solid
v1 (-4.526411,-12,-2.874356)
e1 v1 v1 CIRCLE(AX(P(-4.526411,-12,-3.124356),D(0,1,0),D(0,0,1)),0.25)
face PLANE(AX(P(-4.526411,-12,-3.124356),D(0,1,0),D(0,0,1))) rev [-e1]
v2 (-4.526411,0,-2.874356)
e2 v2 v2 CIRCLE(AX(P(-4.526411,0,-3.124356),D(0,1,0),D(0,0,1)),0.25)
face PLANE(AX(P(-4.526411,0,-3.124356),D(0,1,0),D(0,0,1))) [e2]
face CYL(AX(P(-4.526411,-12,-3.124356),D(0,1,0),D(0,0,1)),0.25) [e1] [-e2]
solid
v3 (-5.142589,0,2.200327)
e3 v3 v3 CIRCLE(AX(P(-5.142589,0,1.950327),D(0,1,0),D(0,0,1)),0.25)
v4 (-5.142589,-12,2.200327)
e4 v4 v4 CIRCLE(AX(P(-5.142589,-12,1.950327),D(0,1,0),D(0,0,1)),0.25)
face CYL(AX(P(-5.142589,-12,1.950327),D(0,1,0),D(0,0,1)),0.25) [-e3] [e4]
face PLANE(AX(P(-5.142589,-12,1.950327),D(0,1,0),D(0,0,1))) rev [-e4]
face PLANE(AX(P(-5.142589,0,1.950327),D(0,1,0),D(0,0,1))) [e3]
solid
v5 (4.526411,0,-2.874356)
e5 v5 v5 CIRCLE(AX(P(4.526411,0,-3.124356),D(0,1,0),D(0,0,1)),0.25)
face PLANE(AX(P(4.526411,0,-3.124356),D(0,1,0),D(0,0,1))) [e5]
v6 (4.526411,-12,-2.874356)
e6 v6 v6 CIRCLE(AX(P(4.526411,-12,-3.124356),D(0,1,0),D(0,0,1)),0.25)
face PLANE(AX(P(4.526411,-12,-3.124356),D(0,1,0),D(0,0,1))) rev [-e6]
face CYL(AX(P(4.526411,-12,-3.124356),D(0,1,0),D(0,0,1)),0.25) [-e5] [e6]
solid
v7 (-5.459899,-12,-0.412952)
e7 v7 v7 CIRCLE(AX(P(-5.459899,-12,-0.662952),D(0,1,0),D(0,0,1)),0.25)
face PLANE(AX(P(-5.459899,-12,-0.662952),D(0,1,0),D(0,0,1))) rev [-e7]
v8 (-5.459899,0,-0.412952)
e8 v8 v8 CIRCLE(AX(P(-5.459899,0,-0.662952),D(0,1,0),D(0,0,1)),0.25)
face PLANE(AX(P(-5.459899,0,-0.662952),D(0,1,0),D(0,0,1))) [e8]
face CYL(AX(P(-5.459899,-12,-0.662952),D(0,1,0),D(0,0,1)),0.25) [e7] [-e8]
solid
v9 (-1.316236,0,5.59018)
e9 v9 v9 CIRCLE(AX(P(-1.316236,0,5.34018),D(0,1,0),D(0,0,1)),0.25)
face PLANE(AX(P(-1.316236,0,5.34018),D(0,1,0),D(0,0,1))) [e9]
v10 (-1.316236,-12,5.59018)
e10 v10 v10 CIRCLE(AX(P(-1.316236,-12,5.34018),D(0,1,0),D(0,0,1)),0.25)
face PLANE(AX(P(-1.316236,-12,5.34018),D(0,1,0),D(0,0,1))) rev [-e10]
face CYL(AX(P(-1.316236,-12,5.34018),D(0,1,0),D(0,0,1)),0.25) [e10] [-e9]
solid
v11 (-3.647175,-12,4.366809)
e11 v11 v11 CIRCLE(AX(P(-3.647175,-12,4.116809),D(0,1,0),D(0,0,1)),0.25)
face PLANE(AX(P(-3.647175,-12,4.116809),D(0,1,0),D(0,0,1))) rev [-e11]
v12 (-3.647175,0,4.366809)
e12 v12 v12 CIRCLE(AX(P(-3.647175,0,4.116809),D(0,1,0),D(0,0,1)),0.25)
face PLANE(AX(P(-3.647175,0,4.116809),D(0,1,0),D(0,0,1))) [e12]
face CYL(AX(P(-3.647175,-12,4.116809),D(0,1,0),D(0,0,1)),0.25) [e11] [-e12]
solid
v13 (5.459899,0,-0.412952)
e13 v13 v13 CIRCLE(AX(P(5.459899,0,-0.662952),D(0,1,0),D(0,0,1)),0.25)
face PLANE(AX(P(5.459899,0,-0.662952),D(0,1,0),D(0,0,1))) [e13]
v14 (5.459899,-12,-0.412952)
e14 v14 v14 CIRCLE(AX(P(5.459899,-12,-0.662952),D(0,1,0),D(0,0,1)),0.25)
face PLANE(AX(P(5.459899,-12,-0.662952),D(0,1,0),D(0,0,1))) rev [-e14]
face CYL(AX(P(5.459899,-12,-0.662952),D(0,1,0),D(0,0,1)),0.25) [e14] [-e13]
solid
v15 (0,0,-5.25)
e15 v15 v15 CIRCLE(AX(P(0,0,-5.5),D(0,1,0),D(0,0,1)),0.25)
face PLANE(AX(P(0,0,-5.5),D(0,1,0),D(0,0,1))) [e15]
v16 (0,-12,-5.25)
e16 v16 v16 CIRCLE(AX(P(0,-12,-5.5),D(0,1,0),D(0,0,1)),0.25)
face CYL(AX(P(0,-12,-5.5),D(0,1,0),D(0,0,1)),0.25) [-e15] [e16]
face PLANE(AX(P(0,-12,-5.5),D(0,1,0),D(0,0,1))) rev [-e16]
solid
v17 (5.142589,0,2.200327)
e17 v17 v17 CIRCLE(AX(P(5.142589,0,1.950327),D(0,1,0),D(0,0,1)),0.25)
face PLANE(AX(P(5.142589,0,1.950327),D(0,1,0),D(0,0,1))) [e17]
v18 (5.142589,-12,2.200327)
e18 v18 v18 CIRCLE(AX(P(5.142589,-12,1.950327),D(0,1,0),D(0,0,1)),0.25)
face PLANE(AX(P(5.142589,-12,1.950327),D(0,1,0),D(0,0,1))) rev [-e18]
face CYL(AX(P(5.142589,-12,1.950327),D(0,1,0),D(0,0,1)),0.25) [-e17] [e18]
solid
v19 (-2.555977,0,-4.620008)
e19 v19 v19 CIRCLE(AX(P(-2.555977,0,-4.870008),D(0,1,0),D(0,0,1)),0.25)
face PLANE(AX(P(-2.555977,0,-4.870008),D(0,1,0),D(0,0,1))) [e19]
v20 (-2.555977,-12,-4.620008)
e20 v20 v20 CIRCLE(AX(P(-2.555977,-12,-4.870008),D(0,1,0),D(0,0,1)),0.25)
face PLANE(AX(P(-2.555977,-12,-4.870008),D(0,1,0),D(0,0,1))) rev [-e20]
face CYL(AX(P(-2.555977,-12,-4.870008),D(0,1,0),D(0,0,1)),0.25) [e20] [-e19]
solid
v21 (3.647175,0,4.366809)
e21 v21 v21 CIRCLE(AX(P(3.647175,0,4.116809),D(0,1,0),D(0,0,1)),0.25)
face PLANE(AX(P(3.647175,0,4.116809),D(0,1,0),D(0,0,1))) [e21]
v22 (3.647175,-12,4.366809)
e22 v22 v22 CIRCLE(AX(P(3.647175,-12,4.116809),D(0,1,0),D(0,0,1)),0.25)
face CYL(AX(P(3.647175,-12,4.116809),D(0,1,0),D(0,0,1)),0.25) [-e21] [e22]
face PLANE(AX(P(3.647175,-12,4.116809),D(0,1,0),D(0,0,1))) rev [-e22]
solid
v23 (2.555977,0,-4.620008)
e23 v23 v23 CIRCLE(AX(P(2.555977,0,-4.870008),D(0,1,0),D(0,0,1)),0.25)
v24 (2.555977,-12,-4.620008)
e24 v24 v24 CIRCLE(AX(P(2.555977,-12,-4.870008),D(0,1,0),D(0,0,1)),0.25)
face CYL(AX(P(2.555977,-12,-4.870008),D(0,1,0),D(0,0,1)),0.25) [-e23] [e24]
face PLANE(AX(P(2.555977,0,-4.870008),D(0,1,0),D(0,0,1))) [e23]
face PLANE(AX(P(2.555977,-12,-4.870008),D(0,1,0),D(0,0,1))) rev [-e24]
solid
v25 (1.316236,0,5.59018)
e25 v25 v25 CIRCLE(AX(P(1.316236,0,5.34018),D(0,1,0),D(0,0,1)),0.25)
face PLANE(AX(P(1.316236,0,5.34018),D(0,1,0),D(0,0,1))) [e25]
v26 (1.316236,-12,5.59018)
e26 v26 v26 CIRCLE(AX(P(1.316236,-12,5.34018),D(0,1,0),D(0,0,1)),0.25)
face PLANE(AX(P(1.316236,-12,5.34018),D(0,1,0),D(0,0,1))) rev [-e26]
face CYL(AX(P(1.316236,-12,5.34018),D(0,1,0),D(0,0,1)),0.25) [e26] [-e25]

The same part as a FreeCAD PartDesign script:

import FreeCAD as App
import Part
import Sketcher
from FreeCAD import Vector

doc = App.newDocument("Part")
params = doc.addObject("Spreadsheet::Sheet", "Params")
for row, (alias, value) in enumerate([
    ("sketch1_diameter", "0.5 mm"),
    ("pad1_length", "12 mm"),
    ("sketch2_diameter", "0.5 mm"),
    ("pad2_length", "12 mm"),
    ("sketch3_diameter", "0.5 mm"),
    ("pad3_length", "12 mm"),
    ("sketch4_diameter", "0.5 mm"),
    ("pad4_length", "12 mm"),
    ("sketch5_diameter", "0.5 mm"),
    ("pad5_length", "12 mm"),
    ("sketch6_diameter", "0.5 mm"),
    ("pad6_length", "12 mm"),
    ("sketch7_diameter", "0.5 mm"),
    ("pad7_length", "12 mm"),
    ("sketch8_diameter", "0.5 mm"),
    ("pad8_length", "12 mm"),
    ("sketch9_diameter", "0.5 mm"),
    ("pad9_length", "12 mm"),
    ("sketch10_diameter", "0.5 mm"),
    ("pad10_length", "12 mm"),
    ("sketch11_diameter", "0.5 mm"),
    ("pad11_length", "12 mm"),
    ("sketch12_diameter", "0.5 mm"),
    ("pad12_length", "12 mm"),
    ("sketch13_diameter", "0.5 mm"),
    ("pad13_length", "12 mm"),
], start=1):
    params.set(f"A{row}", alias)
    params.set(f"B{row}", "=" + value)
    params.setAlias(f"B{row}", alias)

body = doc.addObject("PartDesign::Body", "Body")

sketch1 = body.newObject("Sketcher::SketchObject", "Sketch")
sketch1.AttachmentSupport = (doc.getObject("XZ_Plane"), [""])
sketch1.MapMode = "FlatFace"
sketch1.addGeometry(Part.Circle(Vector(0, -5.5, 0), Vector(0, 0, 1), 0.25), False)
sketch1.addConstraint([
    Sketcher.Constraint("PointOnObject", 0, 3, -2),
    Sketcher.Constraint("Diameter", 0, 0.5),
    Sketcher.Constraint("DistanceY", 0, 3, -1, 1, 5.5),
])
sketch1.setExpression("Constraints[1]", "Params.sketch1_diameter")
pad1 = body.newObject("PartDesign::Pad", "Pad")
pad1.Profile = sketch1
pad1.setExpression("Length", "Params.pad1_length")
body2 = doc.addObject("PartDesign::Body", "Body001")

sketch2 = body2.newObject("Sketcher::SketchObject", "Sketch001")
sketch2.AttachmentSupport = (doc.getObject("XZ_Plane001"), [""])
sketch2.MapMode = "FlatFace"
sketch2.addGeometry(Part.Circle(Vector(2.555977, -4.870008, 0), Vector(0, 0, 1), 0.25), False)
sketch2.addConstraint([
    Sketcher.Constraint("Diameter", 0, 0.5),
    Sketcher.Constraint("DistanceY", 0, 3, -1, 1, 4.870008),
    Sketcher.Constraint("DistanceX", -1, 1, 0, 3, 2.555977),
])
sketch2.setExpression("Constraints[0]", "Params.sketch2_diameter")
pad2 = body2.newObject("PartDesign::Pad", "Pad001")
pad2.Profile = sketch2
pad2.setExpression("Length", "Params.pad2_length")
body3 = doc.addObject("PartDesign::Body", "Body002")

sketch3 = body3.newObject("Sketcher::SketchObject", "Sketch002")
sketch3.AttachmentSupport = (doc.getObject("XZ_Plane002"), [""])
sketch3.MapMode = "FlatFace"
sketch3.addGeometry(Part.Circle(Vector(4.526411, -3.124356, 0), Vector(0, 0, 1), 0.25), False)
sketch3.addConstraint([
    Sketcher.Constraint("Diameter", 0, 0.5),
    Sketcher.Constraint("DistanceX", -1, 1, 0, 3, 4.526411),
    Sketcher.Constraint("DistanceY", 0, 3, -1, 1, 3.124356),
])
sketch3.setExpression("Constraints[0]", "Params.sketch3_diameter")
pad3 = body3.newObject("PartDesign::Pad", "Pad002")
pad3.Profile = sketch3
pad3.setExpression("Length", "Params.pad3_length")
body4 = doc.addObject("PartDesign::Body", "Body003")

sketch4 = body4.newObject("Sketcher::SketchObject", "Sketch003")
sketch4.AttachmentSupport = (doc.getObject("XZ_Plane003"), [""])
sketch4.MapMode = "FlatFace"
sketch4.addGeometry(Part.Circle(Vector(5.459899, -0.662952, 0), Vector(0, 0, 1), 0.25), False)
sketch4.addConstraint([
    Sketcher.Constraint("Diameter", 0, 0.5),
    Sketcher.Constraint("DistanceX", -1, 1, 0, 3, 5.459899),
    Sketcher.Constraint("DistanceY", 0, 3, -1, 1, 0.662952),
])
sketch4.setExpression("Constraints[0]", "Params.sketch4_diameter")
pad4 = body4.newObject("PartDesign::Pad", "Pad003")
pad4.Profile = sketch4
pad4.setExpression("Length", "Params.pad4_length")
body5 = doc.addObject("PartDesign::Body", "Body004")

sketch5 = body5.newObject("Sketcher::SketchObject", "Sketch004")
sketch5.AttachmentSupport = (doc.getObject("XZ_Plane004"), [""])
sketch5.MapMode = "FlatFace"
sketch5.addGeometry(Part.Circle(Vector(5.142589, 1.950327, 0), Vector(0, 0, 1), 0.25), False)
sketch5.addConstraint([
    Sketcher.Constraint("Diameter", 0, 0.5),
    Sketcher.Constraint("DistanceX", -1, 1, 0, 3, 5.142589),
    Sketcher.Constraint("DistanceY", -1, 1, 0, 3, 1.950327),
])
sketch5.setExpression("Constraints[0]", "Params.sketch5_diameter")
pad5 = body5.newObject("PartDesign::Pad", "Pad004")
pad5.Profile = sketch5
pad5.setExpression("Length", "Params.pad5_length")
body6 = doc.addObject("PartDesign::Body", "Body005")

sketch6 = body6.newObject("Sketcher::SketchObject", "Sketch005")
sketch6.AttachmentSupport = (doc.getObject("XZ_Plane005"), [""])
sketch6.MapMode = "FlatFace"
sketch6.addGeometry(Part.Circle(Vector(3.647175, 4.116809, 0), Vector(0, 0, 1), 0.25), False)
sketch6.addConstraint([
    Sketcher.Constraint("Diameter", 0, 0.5),
    Sketcher.Constraint("DistanceY", -1, 1, 0, 3, 4.116809),
    Sketcher.Constraint("DistanceX", -1, 1, 0, 3, 3.647175),
])
sketch6.setExpression("Constraints[0]", "Params.sketch6_diameter")
pad6 = body6.newObject("PartDesign::Pad", "Pad005")
pad6.Profile = sketch6
pad6.setExpression("Length", "Params.pad6_length")
body7 = doc.addObject("PartDesign::Body", "Body006")

sketch7 = body7.newObject("Sketcher::SketchObject", "Sketch006")
sketch7.AttachmentSupport = (doc.getObject("XZ_Plane006"), [""])
sketch7.MapMode = "FlatFace"
sketch7.addGeometry(Part.Circle(Vector(1.316236, 5.34018, 0), Vector(0, 0, 1), 0.25), False)
sketch7.addConstraint([
    Sketcher.Constraint("Diameter", 0, 0.5),
    Sketcher.Constraint("DistanceY", -1, 1, 0, 3, 5.34018),
    Sketcher.Constraint("DistanceX", -1, 1, 0, 3, 1.316236),
])
sketch7.setExpression("Constraints[0]", "Params.sketch7_diameter")
pad7 = body7.newObject("PartDesign::Pad", "Pad006")
pad7.Profile = sketch7
pad7.setExpression("Length", "Params.pad7_length")
body8 = doc.addObject("PartDesign::Body", "Body007")

sketch8 = body8.newObject("Sketcher::SketchObject", "Sketch007")
sketch8.AttachmentSupport = (doc.getObject("XZ_Plane007"), [""])
sketch8.MapMode = "FlatFace"
sketch8.addGeometry(Part.Circle(Vector(-1.316236, 5.34018, 0), Vector(0, 0, 1), 0.25), False)
sketch8.addConstraint([
    Sketcher.Constraint("Diameter", 0, 0.5),
    Sketcher.Constraint("DistanceY", -1, 1, 0, 3, 5.34018),
    Sketcher.Constraint("DistanceX", 0, 3, -1, 1, 1.316236),
])
sketch8.setExpression("Constraints[0]", "Params.sketch8_diameter")
pad8 = body8.newObject("PartDesign::Pad", "Pad007")
pad8.Profile = sketch8
pad8.setExpression("Length", "Params.pad8_length")
body9 = doc.addObject("PartDesign::Body", "Body008")

sketch9 = body9.newObject("Sketcher::SketchObject", "Sketch008")
sketch9.AttachmentSupport = (doc.getObject("XZ_Plane008"), [""])
sketch9.MapMode = "FlatFace"
sketch9.addGeometry(Part.Circle(Vector(-3.647175, 4.116809, 0), Vector(0, 0, 1), 0.25), False)
sketch9.addConstraint([
    Sketcher.Constraint("Diameter", 0, 0.5),
    Sketcher.Constraint("DistanceY", -1, 1, 0, 3, 4.116809),
    Sketcher.Constraint("DistanceX", 0, 3, -1, 1, 3.647175),
])
sketch9.setExpression("Constraints[0]", "Params.sketch9_diameter")
pad9 = body9.newObject("PartDesign::Pad", "Pad008")
pad9.Profile = sketch9
pad9.setExpression("Length", "Params.pad9_length")
body10 = doc.addObject("PartDesign::Body", "Body009")

sketch10 = body10.newObject("Sketcher::SketchObject", "Sketch009")
sketch10.AttachmentSupport = (doc.getObject("XZ_Plane009"), [""])
sketch10.MapMode = "FlatFace"
sketch10.addGeometry(Part.Circle(Vector(-5.142589, 1.950327, 0), Vector(0, 0, 1), 0.25), False)
sketch10.addConstraint([
    Sketcher.Constraint("Diameter", 0, 0.5),
    Sketcher.Constraint("DistanceX", 0, 3, -1, 1, 5.142589),
    Sketcher.Constraint("DistanceY", -1, 1, 0, 3, 1.950327),
])
sketch10.setExpression("Constraints[0]", "Params.sketch10_diameter")
pad10 = body10.newObject("PartDesign::Pad", "Pad009")
pad10.Profile = sketch10
pad10.setExpression("Length", "Params.pad10_length")
body11 = doc.addObject("PartDesign::Body", "Body010")

sketch11 = body11.newObject("Sketcher::SketchObject", "Sketch010")
sketch11.AttachmentSupport = (doc.getObject("XZ_Plane010"), [""])
sketch11.MapMode = "FlatFace"
sketch11.addGeometry(Part.Circle(Vector(-5.459899, -0.662952, 0), Vector(0, 0, 1), 0.25), False)
sketch11.addConstraint([
    Sketcher.Constraint("Diameter", 0, 0.5),
    Sketcher.Constraint("DistanceX", 0, 3, -1, 1, 5.459899),
    Sketcher.Constraint("DistanceY", 0, 3, -1, 1, 0.662952),
])
sketch11.setExpression("Constraints[0]", "Params.sketch11_diameter")
pad11 = body11.newObject("PartDesign::Pad", "Pad010")
pad11.Profile = sketch11
pad11.setExpression("Length", "Params.pad11_length")
body12 = doc.addObject("PartDesign::Body", "Body011")

sketch12 = body12.newObject("Sketcher::SketchObject", "Sketch011")
sketch12.AttachmentSupport = (doc.getObject("XZ_Plane011"), [""])
sketch12.MapMode = "FlatFace"
sketch12.addGeometry(Part.Circle(Vector(-4.526411, -3.124356, 0), Vector(0, 0, 1), 0.25), False)
sketch12.addConstraint([
    Sketcher.Constraint("Diameter", 0, 0.5),
    Sketcher.Constraint("DistanceX", 0, 3, -1, 1, 4.526411),
    Sketcher.Constraint("DistanceY", 0, 3, -1, 1, 3.124356),
])
sketch12.setExpression("Constraints[0]", "Params.sketch12_diameter")
pad12 = body12.newObject("PartDesign::Pad", "Pad011")
pad12.Profile = sketch12
pad12.setExpression("Length", "Params.pad12_length")
body13 = doc.addObject("PartDesign::Body", "Body012")

sketch13 = body13.newObject("Sketcher::SketchObject", "Sketch012")
sketch13.AttachmentSupport = (doc.getObject("XZ_Plane012"), [""])
sketch13.MapMode = "FlatFace"
sketch13.addGeometry(Part.Circle(Vector(-2.555977, -4.870008, 0), Vector(0, 0, 1), 0.25), False)
sketch13.addConstraint([
    Sketcher.Constraint("Diameter", 0, 0.5),
    Sketcher.Constraint("DistanceY", 0, 3, -1, 1, 4.870008),
    Sketcher.Constraint("DistanceX", 0, 3, -1, 1, 2.555977),
])
sketch13.setExpression("Constraints[0]", "Params.sketch13_diameter")
pad13 = body13.newObject("PartDesign::Pad", "Pad012")
pad13.Profile = sketch13
pad13.setExpression("Length", "Params.pad13_length")

doc.recompute()
